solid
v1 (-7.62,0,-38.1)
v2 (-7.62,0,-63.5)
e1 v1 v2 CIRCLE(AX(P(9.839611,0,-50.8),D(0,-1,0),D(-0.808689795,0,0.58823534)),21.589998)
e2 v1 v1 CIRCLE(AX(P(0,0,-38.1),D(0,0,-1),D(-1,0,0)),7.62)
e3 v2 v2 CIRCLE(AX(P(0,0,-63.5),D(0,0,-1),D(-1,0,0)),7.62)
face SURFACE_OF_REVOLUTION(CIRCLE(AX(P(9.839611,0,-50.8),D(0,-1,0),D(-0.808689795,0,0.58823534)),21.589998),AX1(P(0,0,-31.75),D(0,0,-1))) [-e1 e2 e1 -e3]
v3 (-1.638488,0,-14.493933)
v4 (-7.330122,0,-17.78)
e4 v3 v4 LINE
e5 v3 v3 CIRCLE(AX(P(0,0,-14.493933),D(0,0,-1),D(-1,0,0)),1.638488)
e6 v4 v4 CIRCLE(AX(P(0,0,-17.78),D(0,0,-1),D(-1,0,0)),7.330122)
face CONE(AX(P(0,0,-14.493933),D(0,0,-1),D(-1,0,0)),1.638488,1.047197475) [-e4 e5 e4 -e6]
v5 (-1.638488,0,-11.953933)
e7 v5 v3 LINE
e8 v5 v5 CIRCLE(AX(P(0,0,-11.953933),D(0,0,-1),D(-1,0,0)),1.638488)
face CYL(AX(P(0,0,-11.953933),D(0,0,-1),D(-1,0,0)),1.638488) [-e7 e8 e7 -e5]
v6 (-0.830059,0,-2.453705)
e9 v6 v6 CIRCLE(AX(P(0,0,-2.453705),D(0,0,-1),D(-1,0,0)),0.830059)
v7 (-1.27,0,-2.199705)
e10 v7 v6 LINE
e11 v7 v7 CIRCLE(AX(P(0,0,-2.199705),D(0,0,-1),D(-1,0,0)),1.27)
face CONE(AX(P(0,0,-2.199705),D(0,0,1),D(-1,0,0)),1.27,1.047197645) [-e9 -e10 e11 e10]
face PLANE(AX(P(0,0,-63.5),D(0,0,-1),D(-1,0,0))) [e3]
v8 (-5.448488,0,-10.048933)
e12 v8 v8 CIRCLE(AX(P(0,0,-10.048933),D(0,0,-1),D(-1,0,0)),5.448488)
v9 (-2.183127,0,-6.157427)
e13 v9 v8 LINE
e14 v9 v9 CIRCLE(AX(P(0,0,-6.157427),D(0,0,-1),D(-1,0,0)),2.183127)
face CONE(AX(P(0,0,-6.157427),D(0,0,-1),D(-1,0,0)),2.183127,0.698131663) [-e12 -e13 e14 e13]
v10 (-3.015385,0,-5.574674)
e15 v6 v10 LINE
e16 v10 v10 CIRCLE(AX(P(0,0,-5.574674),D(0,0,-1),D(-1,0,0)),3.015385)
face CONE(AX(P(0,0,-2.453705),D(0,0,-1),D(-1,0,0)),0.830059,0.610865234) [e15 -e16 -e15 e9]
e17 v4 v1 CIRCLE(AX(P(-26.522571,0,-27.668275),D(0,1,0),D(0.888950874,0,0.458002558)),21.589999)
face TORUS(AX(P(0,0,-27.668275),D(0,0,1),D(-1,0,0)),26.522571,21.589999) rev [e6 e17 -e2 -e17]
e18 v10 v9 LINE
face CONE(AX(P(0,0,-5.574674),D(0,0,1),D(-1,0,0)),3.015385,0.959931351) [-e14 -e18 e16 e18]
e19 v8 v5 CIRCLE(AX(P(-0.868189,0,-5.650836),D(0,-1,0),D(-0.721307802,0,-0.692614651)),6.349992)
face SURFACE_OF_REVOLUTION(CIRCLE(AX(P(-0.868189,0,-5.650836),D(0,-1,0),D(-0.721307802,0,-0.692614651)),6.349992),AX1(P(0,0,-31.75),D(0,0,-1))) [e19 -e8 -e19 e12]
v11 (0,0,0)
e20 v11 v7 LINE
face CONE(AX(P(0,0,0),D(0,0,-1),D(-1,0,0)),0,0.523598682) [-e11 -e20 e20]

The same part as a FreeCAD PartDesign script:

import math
import FreeCAD as App
import Part
import Sketcher

V = App.Vector
Q = App.Units.Quantity

doc = App.newDocument("Part")
params = doc.addObject("Spreadsheet::Sheet", "Params")
for row, (alias, value) in enumerate([
    ("sketch1_radius", "0.85 in"),
    ("sketch1_width", "0.3 in"),
    ("sketch1_height", "2.5 in"),
    ("sketch1_height2", "0.1 in"),
    ("sketch1_length", "0.1 in"),
    ("revolution_angle", "360 deg"),
], start=1):
    params.set(f"A{row}", alias)
    params.set(f"B{row}", "=" + value)
    params.setAlias(f"B{row}", alias)

body = doc.addObject("PartDesign::Body", "Body")

# Sketch on XZ plane
sketch1 = doc.addObject("Sketcher::SketchObject", "Sketch")
body.addObject(sketch1)
sketch1.AttachmentSupport = (doc.XZ_Plane, [""])
sketch1.MapMode = "FlatFace"
sketch1.addGeometry([
    Part.LineSegment(V(-7.62, -63.5, 0), V(0, -63.5, 0)),  # 0
    Part.LineSegment(V(0, -63.5, 0), V(0, 0, 0)),  # 1
    Part.LineSegment(V(0, 0, 0), V(-1.27, -2.199705, 0)),  # 2
    Part.LineSegment(V(-1.27, -2.199705, 0), V(-0.830059, -2.453705, 0)),  # 3
    Part.LineSegment(V(-0.830059, -2.453705, 0), V(-3.015385, -5.574674, 0)),  # 4
    Part.LineSegment(V(-3.015385, -5.574674, 0), V(-2.183127, -6.157427, 0)),  # 5
    Part.LineSegment(V(-2.183127, -6.157427, 0), V(-5.448488, -10.048933, 0)),  # 6
    Part.ArcOfCircle(Part.Circle(V(-0.868189, -5.650836, 0), V(0, 0, 1), 6.349992), math.radians(-136.162561), math.radians(-96.967542)),  # 7
    Part.LineSegment(V(-1.638488, -11.953933, 0), V(-1.638488, -14.493933, 0)),  # 8
    Part.LineSegment(V(-1.638488, -14.493933, 0), V(-7.330122, -17.78, 0)),  # 9
    Part.ArcOfCircle(Part.Circle(V(-26.522571, -27.668275, 0), V(0, 0, 1), 21.589999), math.radians(-28.892903), math.radians(27.258291)),  # 10
    Part.ArcOfCircle(Part.Circle(V(9.839611, -50.8, 0), V(0, 0, 1), 21.589998), math.radians(143.968118), math.radians(216.031882)),  # 11
], False)
sketch1.addConstraint([
    Sketcher.Constraint("Coincident", 0, 2, 1, 1),
    Sketcher.Constraint("Coincident", 1, 2, 2, 1),
    Sketcher.Constraint("Coincident", 2, 2, 3, 1),
    Sketcher.Constraint("Coincident", 3, 2, 4, 1),
    Sketcher.Constraint("Coincident", 4, 2, 5, 1),
    Sketcher.Constraint("Coincident", 5, 2, 6, 1),
    Sketcher.Constraint("Coincident", 6, 2, 7, 1),
    Sketcher.Constraint("Coincident", 7, 2, 8, 1),
    Sketcher.Constraint("Coincident", 8, 2, 9, 1),
    Sketcher.Constraint("Coincident", 9, 2, 10, 2),
    Sketcher.Constraint("Coincident", 10, 1, 11, 1),
    Sketcher.Constraint("Coincident", 11, 2, 0, 1),
    Sketcher.Constraint("Horizontal", 0),
    Sketcher.Constraint("Vertical", 1),
    Sketcher.Constraint("Vertical", 8),
    Sketcher.Constraint("Coincident", 1, 2, -1, 1),
    Sketcher.Constraint("Equal", 10, 11),
    Sketcher.Constraint("Perpendicular", 2, 3),
    Sketcher.Constraint("Perpendicular", 4, 5),
    Sketcher.Constraint("Vertical", 10, 1, 11, 2),
    Sketcher.Constraint("Radius", 10, Q("0.85 in")),
    Sketcher.Constraint("DistanceX", 0, 1, 0, 2, Q("0.3 in")),
    Sketcher.Constraint("DistanceY", 1, 1, 1, 2, Q("2.5 in")),
    Sketcher.Constraint("DistanceY", 8, 2, 8, 1, Q("0.1 in")),
    Sketcher.Constraint("DistanceY", 11, 3, -1, 1, Q("2 in")),
    Sketcher.Constraint("Angle", 2, Q("-119.999995 deg")),
    Sketcher.Constraint("Angle", 4, Q("-125 deg")),
    Sketcher.Constraint("Angle", 6, Q("-129.999998 deg")),
    Sketcher.Constraint("Angle", 9, Q("-149.999996 deg")),
    Sketcher.Constraint("Distance", 2, Q("0.1 in")),
    Sketcher.Constraint("Distance", 6, Q("0.2 in")),
    Sketcher.Constraint("DistanceY", 9, 2, -1, 1, Q("0.7 in")),
    Sketcher.Constraint("Distance", 3, Q("0.02 in")),
    Sketcher.Constraint("Distance", 4, Q("0.15 in")),
    Sketcher.Constraint("Distance", 5, Q("0.04 in")),
    Sketcher.Constraint("DistanceX", 6, 2, 7, 2, Q("0.15 in")),
    Sketcher.Constraint("Radius", 7, Q("6.349992 mm")),
    Sketcher.Constraint("DistanceY", 7, 2, 6, 2, Q("0.075 in")),
])
sketch1.setExpression("Constraints[20]", "Params.sketch1_radius")
sketch1.setExpression("Constraints[21]", "Params.sketch1_width")
sketch1.setExpression("Constraints[22]", "Params.sketch1_height")
sketch1.setExpression("Constraints[23]", "Params.sketch1_height2")
sketch1.setExpression("Constraints[29]", "Params.sketch1_length")
revolution = doc.addObject("PartDesign::Revolution", "Revolution")
body.addObject(revolution)
revolution.Profile = sketch1
revolution.ReferenceAxis = (sketch1, ["V_Axis"])
revolution.setExpression("Angle", "Params.revolution_angle")

doc.recompute()
